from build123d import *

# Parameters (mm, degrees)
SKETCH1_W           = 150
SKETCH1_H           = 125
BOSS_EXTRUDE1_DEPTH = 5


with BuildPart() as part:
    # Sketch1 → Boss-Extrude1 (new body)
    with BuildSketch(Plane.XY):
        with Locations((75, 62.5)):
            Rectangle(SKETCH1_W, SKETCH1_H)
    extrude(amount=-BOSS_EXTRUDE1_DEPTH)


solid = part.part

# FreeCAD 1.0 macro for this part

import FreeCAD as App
import Part
import Sketcher

V = App.Vector

doc = App.newDocument("Part")
body = doc.addObject("PartDesign::Body", "Body")

# Sketch on XY plane
sketch1 = body.newObject("Sketcher::SketchObject", "Sketch")
sketch1.AttachmentSupport = (doc.getObject("XY_Plane"), [""])
sketch1.MapMode = "FlatFace"
sketch1.addGeometry(Part.LineSegment(V(0, 125, 0), V(0, 0, 0)), False)
sketch1.addGeometry(Part.LineSegment(V(0, 0, 0), V(150, 0, 0)), False)
sketch1.addGeometry(Part.LineSegment(V(150, 0, 0), V(150, 125, 0)), False)
sketch1.addGeometry(Part.LineSegment(V(150, 125, 0), V(0, 125, 0)), False)
sketch1.addConstraint(Sketcher.Constraint("Coincident", 0, 2, 1, 1))
sketch1.addConstraint(Sketcher.Constraint("Coincident", 1, 2, 2, 1))
sketch1.addConstraint(Sketcher.Constraint("Coincident", 2, 2, 3, 1))
sketch1.addConstraint(Sketcher.Constraint("Coincident", 3, 2, 0, 1))
sketch1.addConstraint(Sketcher.Constraint("Vertical", 0))
sketch1.addConstraint(Sketcher.Constraint("Horizontal", 1))
sketch1.addConstraint(Sketcher.Constraint("Vertical", 2))
sketch1.addConstraint(Sketcher.Constraint("Horizontal", 3))
sketch1.addConstraint(Sketcher.Constraint("Coincident", 0, 2, -1, 1))
sketch1.addConstraint(Sketcher.Constraint("DistanceX", 1, 1, 1, 2, 150.0))
sketch1.addConstraint(Sketcher.Constraint("DistanceY", 0, 2, 0, 1, 125.0))
pad1 = body.newObject("PartDesign::Pad", "Pad")
pad1.Profile = sketch1
pad1.Length = 5
pad1.Reversed = True

doc.recompute()
